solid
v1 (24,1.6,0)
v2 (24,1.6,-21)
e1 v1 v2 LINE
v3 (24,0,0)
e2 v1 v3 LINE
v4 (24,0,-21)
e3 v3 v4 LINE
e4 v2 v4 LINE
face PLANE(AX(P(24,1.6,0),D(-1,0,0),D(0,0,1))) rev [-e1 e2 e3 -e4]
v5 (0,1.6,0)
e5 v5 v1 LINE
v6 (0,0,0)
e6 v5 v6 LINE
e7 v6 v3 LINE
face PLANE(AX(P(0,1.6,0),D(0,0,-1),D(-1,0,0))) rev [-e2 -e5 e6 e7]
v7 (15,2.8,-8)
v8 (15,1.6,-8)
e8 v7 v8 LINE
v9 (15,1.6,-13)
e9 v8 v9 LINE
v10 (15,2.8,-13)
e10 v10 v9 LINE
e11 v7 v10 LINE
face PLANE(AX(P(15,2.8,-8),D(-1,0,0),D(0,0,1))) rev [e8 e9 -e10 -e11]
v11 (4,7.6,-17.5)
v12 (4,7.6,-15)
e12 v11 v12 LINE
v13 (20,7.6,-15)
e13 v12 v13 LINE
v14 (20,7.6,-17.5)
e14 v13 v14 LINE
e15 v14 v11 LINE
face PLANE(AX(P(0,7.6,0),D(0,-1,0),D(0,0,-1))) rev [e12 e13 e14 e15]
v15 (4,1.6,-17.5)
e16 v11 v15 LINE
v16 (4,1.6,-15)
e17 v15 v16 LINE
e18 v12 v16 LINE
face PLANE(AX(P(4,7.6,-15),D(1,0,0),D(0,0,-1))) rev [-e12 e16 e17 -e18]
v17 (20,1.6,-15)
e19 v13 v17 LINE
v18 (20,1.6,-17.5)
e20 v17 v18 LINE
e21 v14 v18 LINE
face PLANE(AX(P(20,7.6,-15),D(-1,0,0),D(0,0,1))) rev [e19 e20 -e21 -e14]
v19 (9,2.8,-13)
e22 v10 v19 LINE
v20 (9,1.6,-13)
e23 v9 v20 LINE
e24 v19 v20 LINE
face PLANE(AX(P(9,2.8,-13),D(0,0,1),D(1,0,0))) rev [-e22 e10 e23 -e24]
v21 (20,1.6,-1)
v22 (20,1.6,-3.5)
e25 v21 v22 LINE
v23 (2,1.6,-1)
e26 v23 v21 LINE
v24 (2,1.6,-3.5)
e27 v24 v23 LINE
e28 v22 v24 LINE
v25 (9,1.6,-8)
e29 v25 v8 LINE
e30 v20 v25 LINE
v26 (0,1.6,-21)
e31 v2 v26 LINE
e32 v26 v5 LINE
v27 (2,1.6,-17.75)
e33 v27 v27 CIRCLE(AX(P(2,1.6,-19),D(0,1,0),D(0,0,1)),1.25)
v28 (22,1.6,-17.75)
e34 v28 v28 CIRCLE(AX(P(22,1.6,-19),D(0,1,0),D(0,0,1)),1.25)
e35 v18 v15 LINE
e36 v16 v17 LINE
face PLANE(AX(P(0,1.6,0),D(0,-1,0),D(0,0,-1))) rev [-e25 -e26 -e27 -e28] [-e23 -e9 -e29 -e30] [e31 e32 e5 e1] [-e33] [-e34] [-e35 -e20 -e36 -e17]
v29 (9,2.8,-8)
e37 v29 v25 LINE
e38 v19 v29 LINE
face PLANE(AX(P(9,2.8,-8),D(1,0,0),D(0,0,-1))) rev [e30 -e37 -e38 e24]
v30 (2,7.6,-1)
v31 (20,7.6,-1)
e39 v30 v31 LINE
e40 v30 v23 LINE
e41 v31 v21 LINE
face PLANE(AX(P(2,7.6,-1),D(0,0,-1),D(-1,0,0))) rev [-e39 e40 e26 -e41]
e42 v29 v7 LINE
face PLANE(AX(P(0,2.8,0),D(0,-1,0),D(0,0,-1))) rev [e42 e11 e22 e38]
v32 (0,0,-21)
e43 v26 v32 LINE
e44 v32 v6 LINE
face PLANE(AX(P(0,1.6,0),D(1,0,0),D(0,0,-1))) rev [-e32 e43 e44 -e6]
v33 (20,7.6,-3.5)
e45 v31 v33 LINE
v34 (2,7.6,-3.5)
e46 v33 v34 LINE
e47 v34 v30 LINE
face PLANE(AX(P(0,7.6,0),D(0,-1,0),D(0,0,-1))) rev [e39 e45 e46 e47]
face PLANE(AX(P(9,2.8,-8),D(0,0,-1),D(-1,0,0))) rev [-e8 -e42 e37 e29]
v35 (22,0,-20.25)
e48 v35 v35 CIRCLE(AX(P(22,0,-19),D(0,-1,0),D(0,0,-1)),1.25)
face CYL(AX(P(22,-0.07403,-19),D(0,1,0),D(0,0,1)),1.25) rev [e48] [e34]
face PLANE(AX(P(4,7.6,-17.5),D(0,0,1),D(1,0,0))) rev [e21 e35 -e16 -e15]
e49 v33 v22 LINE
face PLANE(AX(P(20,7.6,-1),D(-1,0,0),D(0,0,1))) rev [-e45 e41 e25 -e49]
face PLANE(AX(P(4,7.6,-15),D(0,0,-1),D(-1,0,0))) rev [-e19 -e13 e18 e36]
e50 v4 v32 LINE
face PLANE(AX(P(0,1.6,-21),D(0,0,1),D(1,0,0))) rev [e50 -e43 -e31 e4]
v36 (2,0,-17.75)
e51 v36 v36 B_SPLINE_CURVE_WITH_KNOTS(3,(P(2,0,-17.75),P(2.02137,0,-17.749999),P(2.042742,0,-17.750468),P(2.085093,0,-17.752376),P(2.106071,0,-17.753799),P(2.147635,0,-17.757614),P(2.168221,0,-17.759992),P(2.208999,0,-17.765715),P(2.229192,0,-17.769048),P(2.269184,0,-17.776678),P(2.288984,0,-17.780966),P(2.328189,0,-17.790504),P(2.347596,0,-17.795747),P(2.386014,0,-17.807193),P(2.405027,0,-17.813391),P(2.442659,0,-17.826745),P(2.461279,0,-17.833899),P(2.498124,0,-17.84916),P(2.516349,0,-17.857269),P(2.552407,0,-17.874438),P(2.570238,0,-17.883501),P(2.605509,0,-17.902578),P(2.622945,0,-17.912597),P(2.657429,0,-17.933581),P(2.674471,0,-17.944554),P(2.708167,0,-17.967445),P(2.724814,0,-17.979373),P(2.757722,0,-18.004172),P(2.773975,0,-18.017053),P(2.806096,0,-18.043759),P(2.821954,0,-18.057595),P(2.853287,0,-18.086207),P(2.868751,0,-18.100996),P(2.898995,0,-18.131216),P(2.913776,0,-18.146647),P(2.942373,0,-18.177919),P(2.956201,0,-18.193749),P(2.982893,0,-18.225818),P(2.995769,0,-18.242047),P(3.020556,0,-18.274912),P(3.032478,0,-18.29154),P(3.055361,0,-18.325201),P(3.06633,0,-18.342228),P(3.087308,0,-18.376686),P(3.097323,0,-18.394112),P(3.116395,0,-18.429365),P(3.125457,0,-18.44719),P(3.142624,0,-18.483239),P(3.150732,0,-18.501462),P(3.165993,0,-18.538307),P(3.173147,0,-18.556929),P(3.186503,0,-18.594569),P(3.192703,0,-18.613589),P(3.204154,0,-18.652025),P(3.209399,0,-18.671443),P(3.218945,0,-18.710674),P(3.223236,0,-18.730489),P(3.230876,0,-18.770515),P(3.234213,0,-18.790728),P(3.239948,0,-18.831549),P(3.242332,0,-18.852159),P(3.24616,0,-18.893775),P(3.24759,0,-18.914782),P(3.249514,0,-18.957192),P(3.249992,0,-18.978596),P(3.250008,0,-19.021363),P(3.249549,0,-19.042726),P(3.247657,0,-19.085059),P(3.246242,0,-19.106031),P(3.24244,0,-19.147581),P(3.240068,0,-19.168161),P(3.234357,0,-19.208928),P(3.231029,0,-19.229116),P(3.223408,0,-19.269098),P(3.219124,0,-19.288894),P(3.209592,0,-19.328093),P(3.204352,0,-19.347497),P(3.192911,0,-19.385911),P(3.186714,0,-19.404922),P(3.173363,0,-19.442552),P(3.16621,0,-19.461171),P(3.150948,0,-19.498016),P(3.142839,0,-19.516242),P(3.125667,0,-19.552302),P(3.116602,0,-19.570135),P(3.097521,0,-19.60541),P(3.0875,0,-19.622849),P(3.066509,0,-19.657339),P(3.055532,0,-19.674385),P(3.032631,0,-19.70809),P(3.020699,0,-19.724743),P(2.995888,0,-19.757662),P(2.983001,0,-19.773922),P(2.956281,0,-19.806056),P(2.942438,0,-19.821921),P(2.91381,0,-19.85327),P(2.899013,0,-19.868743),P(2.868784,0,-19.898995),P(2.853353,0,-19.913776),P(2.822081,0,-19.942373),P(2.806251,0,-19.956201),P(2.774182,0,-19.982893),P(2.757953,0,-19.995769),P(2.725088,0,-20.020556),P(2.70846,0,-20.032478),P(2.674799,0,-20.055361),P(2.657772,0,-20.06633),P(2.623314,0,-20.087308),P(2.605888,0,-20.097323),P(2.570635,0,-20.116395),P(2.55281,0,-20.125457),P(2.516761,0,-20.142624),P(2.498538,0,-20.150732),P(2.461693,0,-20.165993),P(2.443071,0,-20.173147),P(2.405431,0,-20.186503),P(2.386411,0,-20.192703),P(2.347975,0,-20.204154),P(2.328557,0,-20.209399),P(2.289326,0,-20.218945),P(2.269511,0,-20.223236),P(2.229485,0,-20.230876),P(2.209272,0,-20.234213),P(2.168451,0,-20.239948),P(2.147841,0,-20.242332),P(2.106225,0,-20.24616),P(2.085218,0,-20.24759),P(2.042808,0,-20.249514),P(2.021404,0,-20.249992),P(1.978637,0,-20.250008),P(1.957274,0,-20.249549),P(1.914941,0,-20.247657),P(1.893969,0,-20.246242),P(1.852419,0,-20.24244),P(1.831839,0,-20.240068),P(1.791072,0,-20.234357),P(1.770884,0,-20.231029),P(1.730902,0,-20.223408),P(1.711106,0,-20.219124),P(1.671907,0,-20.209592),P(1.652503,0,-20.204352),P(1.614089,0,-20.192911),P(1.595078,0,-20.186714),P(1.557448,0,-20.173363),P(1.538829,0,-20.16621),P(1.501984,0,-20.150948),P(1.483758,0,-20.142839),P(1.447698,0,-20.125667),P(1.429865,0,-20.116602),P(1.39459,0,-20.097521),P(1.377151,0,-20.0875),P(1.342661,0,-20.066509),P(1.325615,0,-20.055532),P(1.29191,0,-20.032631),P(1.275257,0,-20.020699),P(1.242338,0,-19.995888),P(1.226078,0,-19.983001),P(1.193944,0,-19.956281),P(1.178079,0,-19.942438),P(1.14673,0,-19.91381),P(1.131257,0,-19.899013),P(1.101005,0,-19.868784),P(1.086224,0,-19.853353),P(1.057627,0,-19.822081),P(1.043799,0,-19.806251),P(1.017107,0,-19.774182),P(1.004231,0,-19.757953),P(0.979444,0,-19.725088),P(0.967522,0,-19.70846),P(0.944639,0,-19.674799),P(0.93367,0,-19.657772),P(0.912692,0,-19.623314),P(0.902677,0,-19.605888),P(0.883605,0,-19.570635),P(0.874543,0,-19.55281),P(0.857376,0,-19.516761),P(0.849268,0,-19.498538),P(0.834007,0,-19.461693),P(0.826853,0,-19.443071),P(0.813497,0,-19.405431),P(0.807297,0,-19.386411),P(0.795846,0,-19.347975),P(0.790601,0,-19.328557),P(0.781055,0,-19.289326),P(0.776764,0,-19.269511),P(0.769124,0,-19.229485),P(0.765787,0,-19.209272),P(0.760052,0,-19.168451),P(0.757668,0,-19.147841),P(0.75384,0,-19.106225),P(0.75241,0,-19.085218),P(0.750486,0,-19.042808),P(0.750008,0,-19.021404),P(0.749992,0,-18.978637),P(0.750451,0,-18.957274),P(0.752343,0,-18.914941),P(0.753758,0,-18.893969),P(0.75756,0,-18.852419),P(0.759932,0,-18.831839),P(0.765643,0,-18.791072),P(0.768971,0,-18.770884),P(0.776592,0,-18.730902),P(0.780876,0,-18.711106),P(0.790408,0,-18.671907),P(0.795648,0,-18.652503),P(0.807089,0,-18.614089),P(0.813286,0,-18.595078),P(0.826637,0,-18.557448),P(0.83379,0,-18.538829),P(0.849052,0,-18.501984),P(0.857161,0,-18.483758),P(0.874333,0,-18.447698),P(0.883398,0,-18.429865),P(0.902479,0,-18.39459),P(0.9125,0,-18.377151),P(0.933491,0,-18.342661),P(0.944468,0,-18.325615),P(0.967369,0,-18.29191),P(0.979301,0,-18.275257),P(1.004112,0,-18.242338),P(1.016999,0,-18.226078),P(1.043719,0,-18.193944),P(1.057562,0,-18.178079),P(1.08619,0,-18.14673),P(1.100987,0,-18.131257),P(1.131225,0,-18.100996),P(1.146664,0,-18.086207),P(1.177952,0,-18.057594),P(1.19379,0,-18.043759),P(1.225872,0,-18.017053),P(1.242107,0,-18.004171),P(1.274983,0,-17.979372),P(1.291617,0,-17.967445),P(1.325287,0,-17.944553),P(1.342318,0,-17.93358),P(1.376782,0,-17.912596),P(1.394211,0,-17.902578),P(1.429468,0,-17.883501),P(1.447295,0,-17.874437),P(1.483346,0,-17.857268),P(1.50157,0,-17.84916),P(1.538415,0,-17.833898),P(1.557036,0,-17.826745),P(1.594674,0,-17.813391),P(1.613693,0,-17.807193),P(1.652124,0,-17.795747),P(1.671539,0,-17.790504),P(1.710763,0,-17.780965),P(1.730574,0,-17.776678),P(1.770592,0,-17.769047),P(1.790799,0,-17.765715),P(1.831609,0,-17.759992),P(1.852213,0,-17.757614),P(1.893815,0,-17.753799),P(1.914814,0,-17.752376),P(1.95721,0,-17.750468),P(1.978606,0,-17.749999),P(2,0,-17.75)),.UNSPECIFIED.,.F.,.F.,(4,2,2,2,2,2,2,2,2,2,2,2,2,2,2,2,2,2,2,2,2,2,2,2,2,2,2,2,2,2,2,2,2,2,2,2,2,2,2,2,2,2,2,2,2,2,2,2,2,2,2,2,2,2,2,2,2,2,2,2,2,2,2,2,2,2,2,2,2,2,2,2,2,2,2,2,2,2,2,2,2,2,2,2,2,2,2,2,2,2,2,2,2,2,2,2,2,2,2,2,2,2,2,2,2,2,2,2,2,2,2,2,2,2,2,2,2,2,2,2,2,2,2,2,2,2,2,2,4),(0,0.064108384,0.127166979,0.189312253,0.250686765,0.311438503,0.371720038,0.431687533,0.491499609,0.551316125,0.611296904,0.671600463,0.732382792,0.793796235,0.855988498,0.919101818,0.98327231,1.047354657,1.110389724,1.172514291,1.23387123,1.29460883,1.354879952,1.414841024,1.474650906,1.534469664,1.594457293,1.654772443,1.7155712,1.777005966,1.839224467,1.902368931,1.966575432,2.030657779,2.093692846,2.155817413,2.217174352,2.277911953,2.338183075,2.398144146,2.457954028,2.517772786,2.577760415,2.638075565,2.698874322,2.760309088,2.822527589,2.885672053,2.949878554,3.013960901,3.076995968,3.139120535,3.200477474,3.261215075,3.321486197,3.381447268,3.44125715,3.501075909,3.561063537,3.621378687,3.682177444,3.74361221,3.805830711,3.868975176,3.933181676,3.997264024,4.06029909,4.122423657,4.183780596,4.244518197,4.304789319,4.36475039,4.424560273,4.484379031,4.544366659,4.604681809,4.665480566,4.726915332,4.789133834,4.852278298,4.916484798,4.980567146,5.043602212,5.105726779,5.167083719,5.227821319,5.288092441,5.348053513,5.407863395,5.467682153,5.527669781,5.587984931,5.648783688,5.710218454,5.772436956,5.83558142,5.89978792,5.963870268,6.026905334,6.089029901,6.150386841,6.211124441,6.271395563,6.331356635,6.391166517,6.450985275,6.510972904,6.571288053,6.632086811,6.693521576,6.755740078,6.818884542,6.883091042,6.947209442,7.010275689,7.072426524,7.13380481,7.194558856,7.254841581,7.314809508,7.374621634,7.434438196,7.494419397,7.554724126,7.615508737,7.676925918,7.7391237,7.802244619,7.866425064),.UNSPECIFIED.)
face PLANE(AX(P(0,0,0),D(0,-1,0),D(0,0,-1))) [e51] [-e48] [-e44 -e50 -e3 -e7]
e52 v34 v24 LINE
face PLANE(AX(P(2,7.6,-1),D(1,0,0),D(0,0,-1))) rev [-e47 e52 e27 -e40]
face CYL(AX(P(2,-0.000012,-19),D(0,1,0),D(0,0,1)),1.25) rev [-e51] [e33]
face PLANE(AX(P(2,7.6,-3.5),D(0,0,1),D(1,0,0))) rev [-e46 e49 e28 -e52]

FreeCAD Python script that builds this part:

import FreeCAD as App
import Part
import Sketcher
from FreeCAD import Vector
Q = App.Units.Quantity

doc = App.newDocument("Part")
params = doc.addObject("Spreadsheet::Sheet", "Params")
for row, (alias, value) in enumerate([
    ("sketch1_width", "24 mm"),
    ("sketch1_height", "21 mm"),
    ("pad1_length", "1.6 mm"),
    ("sketch2_diameter", "2.5 mm"),
    ("sketch3_diameter", "2.5 mm"),
    ("sketch4_width", "6 mm"),
    ("sketch4_height", "5 mm"),
    ("pad2_length", "1.2 mm"),
    ("sketch5_width", "18 mm"),
    ("sketch5_height", "2.5 mm"),
    ("pad3_length", "6 mm"),
    ("sketch6_width", "16 mm"),
    ("sketch6_height", "2.5 mm"),
    ("pad4_length", "6 mm"),
], start=1):
    params.set(f"A{row}", alias)
    params.set(f"B{row}", "=" + value)
    params.setAlias(f"B{row}", alias)

body = doc.addObject("PartDesign::Body", "Body")

# Sketch on XZ plane
sketch1 = body.newObject("Sketcher::SketchObject", "Sketch")
sketch1.AttachmentSupport = (doc.getObject("XZ_Plane"), [""])
sketch1.MapMode = "FlatFace"
sketch1.addGeometry([
    Part.LineSegment(Vector(0, -21, 0), Vector(0, 0, 0)),
    Part.LineSegment(Vector(0, 0, 0), Vector(24, 0, 0)),
    Part.LineSegment(Vector(24, 0, 0), Vector(24, -21, 0)),
    Part.LineSegment(Vector(24, -21, 0), Vector(0, -21, 0)),
], False)
sketch1.addConstraint([
    Sketcher.Constraint("Coincident", 0, 2, 1, 1),
    Sketcher.Constraint("Coincident", 1, 2, 2, 1),
    Sketcher.Constraint("Coincident", 2, 2, 3, 1),
    Sketcher.Constraint("Coincident", 3, 2, 0, 1),
    Sketcher.Constraint("Vertical", 0),
    Sketcher.Constraint("Horizontal", 1),
    Sketcher.Constraint("Vertical", 2),
    Sketcher.Constraint("Horizontal", 3),
    Sketcher.Constraint("Coincident", 0, 2, -1, 1),
    Sketcher.Constraint("DistanceX", 1, 1, 1, 2, Q("24 mm")),
    Sketcher.Constraint("DistanceY", 0, 1, 0, 2, Q("21 mm")),
])
sketch1.setExpression("Constraints[9]", "Params.sketch1_width")
sketch1.setExpression("Constraints[10]", "Params.sketch1_height")
pad1 = body.newObject("PartDesign::Pad", "Pad")
pad1.Profile = sketch1
pad1.setExpression("Length", "Params.pad1_length")
pad1.Reversed = True

# Sketch on XZ plane
sketch2 = body.newObject("Sketcher::SketchObject", "Sketch001")
sketch2.AttachmentSupport = (doc.getObject("XZ_Plane"), [""])
sketch2.MapMode = "FlatFace"
sketch2.addGeometry(Part.Circle(Vector(2, -19, 0), Vector(0, 0, 1), 1.25), False)
sketch2.addConstraint([
    Sketcher.Constraint("Diameter", 0, Q("2.5 mm")),
    Sketcher.Constraint("DistanceX", -1, 1, 0, 3, Q("2 mm")),
    Sketcher.Constraint("DistanceY", 0, 3, -1, 1, Q("19 mm")),
])
sketch2.setExpression("Constraints[0]", "Params.sketch2_diameter")
pocket1 = body.newObject("PartDesign::Pocket", "Pocket")
pocket1.Profile = sketch2
pocket1.Type = "ThroughAll"
pocket1.Midplane = True

# Sketch on XZ plane
sketch3 = body.newObject("Sketcher::SketchObject", "Sketch002")
sketch3.AttachmentSupport = (doc.getObject("XZ_Plane"), [""])
sketch3.MapMode = "FlatFace"
sketch3.addGeometry(Part.Circle(Vector(22, -19, 0), Vector(0, 0, 1), 1.25), False)
sketch3.addConstraint([
    Sketcher.Constraint("Diameter", 0, Q("2.5 mm")),
    Sketcher.Constraint("DistanceX", -1, 1, 0, 3, Q("22 mm")),
    Sketcher.Constraint("DistanceY", 0, 3, -1, 1, Q("19 mm")),
])
sketch3.setExpression("Constraints[0]", "Params.sketch3_diameter")
pocket2 = body.newObject("PartDesign::Pocket", "Pocket001")
pocket2.Profile = sketch3
pocket2.Type = "ThroughAll"
pocket2.Midplane = True

# Sketch on XZ plane
sketch4 = body.newObject("Sketcher::SketchObject", "Sketch003")
sketch4.AttachmentSupport = (doc.getObject("XZ_Plane"), [""])
sketch4.MapMode = "FlatFace"
sketch4.AttachmentOffset = App.Placement(Vector(0, 0, -1.6), App.Rotation())
sketch4.addGeometry([
    Part.LineSegment(Vector(9, -13, 0), Vector(9, -8, 0)),
    Part.LineSegment(Vector(9, -8, 0), Vector(15, -8, 0)),
    Part.LineSegment(Vector(15, -8, 0), Vector(15, -13, 0)),
    Part.LineSegment(Vector(15, -13, 0), Vector(9, -13, 0)),
], False)
sketch4.addConstraint([
    Sketcher.Constraint("Coincident", 0, 2, 1, 1),
    Sketcher.Constraint("Coincident", 1, 2, 2, 1),
    Sketcher.Constraint("Coincident", 2, 2, 3, 1),
    Sketcher.Constraint("Coincident", 3, 2, 0, 1),
    Sketcher.Constraint("Vertical", 0),
    Sketcher.Constraint("Horizontal", 1),
    Sketcher.Constraint("Vertical", 2),
    Sketcher.Constraint("Horizontal", 3),
    Sketcher.Constraint("DistanceX", 1, 1, 1, 2, Q("6 mm")),
    Sketcher.Constraint("DistanceY", 0, 1, 0, 2, Q("5 mm")),
    Sketcher.Constraint("DistanceX", -1, 1, 0, 2, Q("9 mm")),
    Sketcher.Constraint("DistanceY", 0, 2, -1, 1, Q("8 mm")),
])
sketch4.setExpression("Constraints[8]", "Params.sketch4_width")
sketch4.setExpression("Constraints[9]", "Params.sketch4_height")
pad2 = body.newObject("PartDesign::Pad", "Pad001")
pad2.Profile = sketch4
pad2.setExpression("Length", "Params.pad2_length")
pad2.Reversed = True

# Sketch on XZ plane
sketch5 = body.newObject("Sketcher::SketchObject", "Sketch004")
sketch5.AttachmentSupport = (doc.getObject("XZ_Plane"), [""])
sketch5.MapMode = "FlatFace"
sketch5.AttachmentOffset = App.Placement(Vector(0, 0, -1.6), App.Rotation())
sketch5.addGeometry([
    Part.LineSegment(Vector(2, -3.5, 0), Vector(2, -1, 0)),
    Part.LineSegment(Vector(2, -1, 0), Vector(20, -1, 0)),
    Part.LineSegment(Vector(20, -1, 0), Vector(20, -3.5, 0)),
    Part.LineSegment(Vector(20, -3.5, 0), Vector(2, -3.5, 0)),
], False)
sketch5.addConstraint([
    Sketcher.Constraint("Coincident", 0, 2, 1, 1),
    Sketcher.Constraint("Coincident", 1, 2, 2, 1),
    Sketcher.Constraint("Coincident", 2, 2, 3, 1),
    Sketcher.Constraint("Coincident", 3, 2, 0, 1),
    Sketcher.Constraint("Vertical", 0),
    Sketcher.Constraint("Horizontal", 1),
    Sketcher.Constraint("Vertical", 2),
    Sketcher.Constraint("Horizontal", 3),
    Sketcher.Constraint("DistanceX", 1, 1, 1, 2, Q("18 mm")),
    Sketcher.Constraint("DistanceY", 0, 1, 0, 2, Q("2.5 mm")),
    Sketcher.Constraint("DistanceX", -1, 1, 0, 2, Q("2 mm")),
    Sketcher.Constraint("DistanceY", 0, 2, -1, 1, Q("1 mm")),
])
sketch5.setExpression("Constraints[8]", "Params.sketch5_width")
sketch5.setExpression("Constraints[9]", "Params.sketch5_height")
pad3 = body.newObject("PartDesign::Pad", "Pad002")
pad3.Profile = sketch5
pad3.setExpression("Length", "Params.pad3_length")
pad3.Reversed = True

# Sketch on XZ plane
sketch6 = body.newObject("Sketcher::SketchObject", "Sketch005")
sketch6.AttachmentSupport = (doc.getObject("XZ_Plane"), [""])
sketch6.MapMode = "FlatFace"
sketch6.AttachmentOffset = App.Placement(Vector(0, 0, -1.6), App.Rotation())
sketch6.addGeometry([
    Part.LineSegment(Vector(4, -17.5, 0), Vector(4, -15, 0)),
    Part.LineSegment(Vector(4, -15, 0), Vector(20, -15, 0)),
    Part.LineSegment(Vector(20, -15, 0), Vector(20, -17.5, 0)),
    Part.LineSegment(Vector(20, -17.5, 0), Vector(4, -17.5, 0)),
], False)
sketch6.addConstraint([
    Sketcher.Constraint("Coincident", 0, 2, 1, 1),
    Sketcher.Constraint("Coincident", 1, 2, 2, 1),
    Sketcher.Constraint("Coincident", 2, 2, 3, 1),
    Sketcher.Constraint("Coincident", 3, 2, 0, 1),
    Sketcher.Constraint("Vertical", 0),
    Sketcher.Constraint("Horizontal", 1),
    Sketcher.Constraint("Vertical", 2),
    Sketcher.Constraint("Horizontal", 3),
    Sketcher.Constraint("DistanceX", 1, 1, 1, 2, Q("16 mm")),
    Sketcher.Constraint("DistanceY", 0, 1, 0, 2, Q("2.5 mm")),
    Sketcher.Constraint("DistanceX", -1, 1, 0, 2, Q("4 mm")),
    Sketcher.Constraint("DistanceY", 0, 2, -1, 1, Q("15 mm")),
])
sketch6.setExpression("Constraints[8]", "Params.sketch6_width")
sketch6.setExpression("Constraints[9]", "Params.sketch6_height")
pad4 = body.newObject("PartDesign::Pad", "Pad003")
pad4.Profile = sketch6
pad4.setExpression("Length", "Params.pad4_length")
pad4.Reversed = True

doc.recompute()
